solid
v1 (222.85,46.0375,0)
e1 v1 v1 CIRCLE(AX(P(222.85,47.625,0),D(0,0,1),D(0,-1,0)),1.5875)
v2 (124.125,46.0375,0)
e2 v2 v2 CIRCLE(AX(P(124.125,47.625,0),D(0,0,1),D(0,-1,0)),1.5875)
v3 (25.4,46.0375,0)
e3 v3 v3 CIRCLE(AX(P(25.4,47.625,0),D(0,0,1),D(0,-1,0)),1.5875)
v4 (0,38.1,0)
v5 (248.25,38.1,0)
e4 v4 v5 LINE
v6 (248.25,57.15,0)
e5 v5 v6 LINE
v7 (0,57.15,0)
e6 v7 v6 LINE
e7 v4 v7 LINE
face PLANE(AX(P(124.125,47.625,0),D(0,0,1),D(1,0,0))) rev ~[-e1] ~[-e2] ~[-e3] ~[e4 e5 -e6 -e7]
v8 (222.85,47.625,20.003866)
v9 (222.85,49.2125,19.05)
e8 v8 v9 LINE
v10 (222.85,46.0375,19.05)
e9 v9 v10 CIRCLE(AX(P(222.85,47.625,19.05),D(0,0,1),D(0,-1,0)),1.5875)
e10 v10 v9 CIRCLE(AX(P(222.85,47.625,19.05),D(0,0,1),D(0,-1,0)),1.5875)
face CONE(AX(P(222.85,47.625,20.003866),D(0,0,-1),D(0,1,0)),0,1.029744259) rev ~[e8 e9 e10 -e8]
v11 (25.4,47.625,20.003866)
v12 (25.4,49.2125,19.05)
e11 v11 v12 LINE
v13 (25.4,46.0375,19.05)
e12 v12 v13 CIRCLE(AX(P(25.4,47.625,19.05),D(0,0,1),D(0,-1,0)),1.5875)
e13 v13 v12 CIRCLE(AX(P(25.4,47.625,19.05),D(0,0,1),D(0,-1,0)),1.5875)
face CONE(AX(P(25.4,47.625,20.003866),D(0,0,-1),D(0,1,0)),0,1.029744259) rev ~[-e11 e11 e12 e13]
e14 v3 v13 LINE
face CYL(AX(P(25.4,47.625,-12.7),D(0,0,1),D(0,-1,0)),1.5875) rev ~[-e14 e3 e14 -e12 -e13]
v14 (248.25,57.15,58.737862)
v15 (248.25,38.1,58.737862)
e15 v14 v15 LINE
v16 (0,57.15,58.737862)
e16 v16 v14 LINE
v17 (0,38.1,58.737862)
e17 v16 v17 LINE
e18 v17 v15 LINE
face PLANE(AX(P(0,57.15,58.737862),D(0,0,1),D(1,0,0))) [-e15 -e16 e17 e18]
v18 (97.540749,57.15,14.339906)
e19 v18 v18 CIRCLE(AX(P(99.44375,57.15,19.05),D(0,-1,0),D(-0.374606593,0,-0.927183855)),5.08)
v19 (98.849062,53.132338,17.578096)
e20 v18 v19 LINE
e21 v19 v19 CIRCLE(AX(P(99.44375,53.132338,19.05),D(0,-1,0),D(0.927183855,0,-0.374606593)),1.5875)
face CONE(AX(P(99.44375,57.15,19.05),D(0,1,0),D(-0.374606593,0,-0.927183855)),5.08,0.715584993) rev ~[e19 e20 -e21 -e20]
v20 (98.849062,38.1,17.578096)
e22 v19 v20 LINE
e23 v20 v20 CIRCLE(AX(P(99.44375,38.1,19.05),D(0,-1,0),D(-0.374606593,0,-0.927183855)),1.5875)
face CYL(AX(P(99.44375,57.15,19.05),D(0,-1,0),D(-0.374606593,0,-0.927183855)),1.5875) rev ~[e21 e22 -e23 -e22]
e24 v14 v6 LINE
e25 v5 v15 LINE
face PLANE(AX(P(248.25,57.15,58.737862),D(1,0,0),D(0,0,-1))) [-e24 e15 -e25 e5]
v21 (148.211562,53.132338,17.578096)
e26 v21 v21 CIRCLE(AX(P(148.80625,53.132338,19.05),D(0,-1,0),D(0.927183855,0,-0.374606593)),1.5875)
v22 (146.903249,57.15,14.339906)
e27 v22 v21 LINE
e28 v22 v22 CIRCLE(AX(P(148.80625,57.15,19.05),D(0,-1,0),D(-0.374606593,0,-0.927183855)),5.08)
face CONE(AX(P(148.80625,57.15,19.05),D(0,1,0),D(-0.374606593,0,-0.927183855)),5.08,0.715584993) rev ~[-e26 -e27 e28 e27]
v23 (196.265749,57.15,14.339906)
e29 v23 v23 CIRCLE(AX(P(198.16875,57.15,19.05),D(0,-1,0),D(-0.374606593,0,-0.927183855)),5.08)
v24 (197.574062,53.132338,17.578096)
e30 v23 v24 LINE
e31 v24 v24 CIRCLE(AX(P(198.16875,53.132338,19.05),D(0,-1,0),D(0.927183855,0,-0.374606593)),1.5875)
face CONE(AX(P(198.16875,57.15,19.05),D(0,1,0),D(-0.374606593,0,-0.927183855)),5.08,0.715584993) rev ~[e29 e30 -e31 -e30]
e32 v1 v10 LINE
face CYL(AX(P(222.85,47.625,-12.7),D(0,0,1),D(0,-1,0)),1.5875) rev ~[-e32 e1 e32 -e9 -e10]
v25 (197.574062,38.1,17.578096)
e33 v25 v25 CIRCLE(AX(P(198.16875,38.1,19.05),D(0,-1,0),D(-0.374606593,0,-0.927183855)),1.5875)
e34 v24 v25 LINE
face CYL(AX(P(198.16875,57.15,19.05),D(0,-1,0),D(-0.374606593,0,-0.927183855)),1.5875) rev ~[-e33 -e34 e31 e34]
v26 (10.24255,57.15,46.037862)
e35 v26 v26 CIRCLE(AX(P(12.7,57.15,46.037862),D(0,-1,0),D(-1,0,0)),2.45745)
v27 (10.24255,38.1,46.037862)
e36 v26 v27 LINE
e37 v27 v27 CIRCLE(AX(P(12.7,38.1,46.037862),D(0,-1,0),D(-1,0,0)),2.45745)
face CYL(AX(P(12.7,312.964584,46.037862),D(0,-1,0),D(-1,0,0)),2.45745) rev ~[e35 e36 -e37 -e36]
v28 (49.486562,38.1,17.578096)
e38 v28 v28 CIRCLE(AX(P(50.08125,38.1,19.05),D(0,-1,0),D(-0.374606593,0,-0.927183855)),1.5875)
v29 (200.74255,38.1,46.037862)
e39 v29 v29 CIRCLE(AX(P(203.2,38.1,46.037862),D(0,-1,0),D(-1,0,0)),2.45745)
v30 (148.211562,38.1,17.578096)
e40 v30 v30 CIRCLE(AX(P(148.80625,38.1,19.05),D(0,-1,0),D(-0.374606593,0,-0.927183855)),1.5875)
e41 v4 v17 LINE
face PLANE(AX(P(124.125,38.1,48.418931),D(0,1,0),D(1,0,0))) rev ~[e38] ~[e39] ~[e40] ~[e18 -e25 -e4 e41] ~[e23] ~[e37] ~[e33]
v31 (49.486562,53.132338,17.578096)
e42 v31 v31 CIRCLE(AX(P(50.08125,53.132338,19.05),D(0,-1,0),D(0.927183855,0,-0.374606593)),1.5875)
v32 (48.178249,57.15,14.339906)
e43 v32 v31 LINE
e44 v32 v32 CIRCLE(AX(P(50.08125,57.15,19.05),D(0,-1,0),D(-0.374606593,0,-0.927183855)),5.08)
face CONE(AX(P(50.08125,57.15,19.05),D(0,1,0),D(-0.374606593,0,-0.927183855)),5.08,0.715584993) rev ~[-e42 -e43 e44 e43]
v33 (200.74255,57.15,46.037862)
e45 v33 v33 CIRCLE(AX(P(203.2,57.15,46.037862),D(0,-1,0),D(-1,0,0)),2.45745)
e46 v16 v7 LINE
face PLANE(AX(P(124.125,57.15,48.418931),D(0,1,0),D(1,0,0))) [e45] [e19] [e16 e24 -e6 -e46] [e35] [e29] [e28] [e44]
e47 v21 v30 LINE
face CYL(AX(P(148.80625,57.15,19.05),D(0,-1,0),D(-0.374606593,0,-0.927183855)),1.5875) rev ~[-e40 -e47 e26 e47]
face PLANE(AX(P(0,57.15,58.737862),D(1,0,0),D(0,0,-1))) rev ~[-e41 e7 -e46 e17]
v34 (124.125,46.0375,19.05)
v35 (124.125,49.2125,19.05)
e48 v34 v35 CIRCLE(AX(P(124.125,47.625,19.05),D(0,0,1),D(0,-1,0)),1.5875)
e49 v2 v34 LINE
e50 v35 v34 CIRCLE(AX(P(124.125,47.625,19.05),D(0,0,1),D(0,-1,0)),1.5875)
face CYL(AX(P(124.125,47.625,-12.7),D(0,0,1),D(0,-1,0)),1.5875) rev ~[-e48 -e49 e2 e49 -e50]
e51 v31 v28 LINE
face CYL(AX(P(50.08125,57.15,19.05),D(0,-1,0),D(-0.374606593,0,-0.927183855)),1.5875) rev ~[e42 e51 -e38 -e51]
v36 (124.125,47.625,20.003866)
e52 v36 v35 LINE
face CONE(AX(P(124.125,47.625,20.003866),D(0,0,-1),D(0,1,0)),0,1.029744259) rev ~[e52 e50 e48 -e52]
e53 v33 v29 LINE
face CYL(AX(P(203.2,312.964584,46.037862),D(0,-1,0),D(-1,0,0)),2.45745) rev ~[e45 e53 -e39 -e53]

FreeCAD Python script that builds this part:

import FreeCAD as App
import Part
import Sketcher
Q = App.Units.Quantity

doc = App.newDocument("Part")
params = doc.addObject("Spreadsheet::Sheet", "Params")
for row, (alias, value) in enumerate([
    ("sketch1_height", "0.75 in"),
    ("pad1_length", "1.5 in"),
    ("sketch2_diameter", "0.125 in"),
    ("hole_diameter", "0.125 in"),
    ("hole_depth", "1.25 in"),
    ("hole_csink_diameter", "0.4 in"),
    ("sketch3_diameter", "0.125 in"),
    ("hole2_diameter", "0.125 in"),
    ("hole2_depth", "2.25 in"),
    ("hole2_csink_diameter", "0.4 in"),
    ("pad2_length", "0.75 in"),
    ("hole3_diameter", "0.1935 in"),
], start=1):
    params.set(f"A{row}", alias)
    params.set(f"B{row}", "=" + value)
    params.setAlias(f"B{row}", alias)

body = doc.addObject("PartDesign::Body", "Body")

# Sketch on XY plane
sketch1 = body.newObject("Sketcher::SketchObject", "Sketch")
sketch1.AttachmentSupport = (doc.getObject("XY_Plane"), [""])
sketch1.MapMode = "FlatFace"
sketch1.addGeometry(Part.LineSegment(App.Vector(0, 57, 0), App.Vector(0, 38, 0)), False)
sketch1.addGeometry(Part.LineSegment(App.Vector(0, 38, 0), App.Vector(248, 38, 0)), False)
sketch1.addGeometry(Part.LineSegment(App.Vector(248, 38, 0), App.Vector(248, 57, 0)), False)
sketch1.addGeometry(Part.LineSegment(App.Vector(248, 57, 0), App.Vector(0, 57, 0)), False)
sketch1.addConstraint(Sketcher.Constraint("Coincident", 0, 2, 1, 1))
sketch1.addConstraint(Sketcher.Constraint("Coincident", 1, 2, 2, 1))
sketch1.addConstraint(Sketcher.Constraint("Coincident", 2, 2, 3, 1))
sketch1.addConstraint(Sketcher.Constraint("Coincident", 3, 2, 0, 1))
sketch1.addConstraint(Sketcher.Constraint("Vertical", 0))
sketch1.addConstraint(Sketcher.Constraint("Horizontal", 1))
sketch1.addConstraint(Sketcher.Constraint("Vertical", 2))
sketch1.addConstraint(Sketcher.Constraint("Horizontal", 3))
sketch1.addConstraint(Sketcher.Constraint("PointOnObject", 0, 2, -2))
sketch1.addConstraint(Sketcher.Constraint("DistanceY", 0, 2, 0, 1, Q("0.75 in")))
sketch1.addConstraint(Sketcher.Constraint("DistanceY", -1, 1, 0, 2, Q("1.5 in")))
sketch1.addConstraint(Sketcher.Constraint("DistanceX", 1, 1, 1, 2, Q("248.25 mm")))
sketch1.setExpression("Constraints[9]", "Params.sketch1_height")
pad1 = body.newObject("PartDesign::Pad", "Pad")
pad1.Profile = sketch1
pad1.setExpression("Length", "Params.pad1_length")

# Sketch on XY plane
sketch2 = body.newObject("Sketcher::SketchObject", "Sketch001")
sketch2.AttachmentSupport = (doc.getObject("XY_Plane"), [""])
sketch2.MapMode = "FlatFace"
sketch2.AttachmentOffset = App.Placement(App.Vector(0, 0, -0.5 * 25.4), App.Rotation())
sketch2.addGeometry(Part.Circle(App.Vector(222.8, -153.3, 0), App.Vector(0, 0, 1), 1.6), False)
sketch2.addGeometry(Part.Circle(App.Vector(222.8, 47.6, 0), App.Vector(0, 0, 1), 1.6), False)
sketch2.addGeometry(Part.Circle(App.Vector(25.4, 47.6, 0), App.Vector(0, 0, 1), 1.6), False)
sketch2.addGeometry(Part.Circle(App.Vector(124.1, 47.6, 0), App.Vector(0, 0, 1), 1.6), False)
sketch2.addGeometry(Part.Circle(App.Vector(124.1, -153.3, 0), App.Vector(0, 0, 1), 1.6), False)
sketch2.addGeometry(Part.Circle(App.Vector(25.4, -153.3, 0), App.Vector(0, 0, 1), 1.6), False)
sketch2.addConstraint(Sketcher.Constraint("Equal", 0, 1))
sketch2.addConstraint(Sketcher.Constraint("Equal", 1, 2))
sketch2.addConstraint(Sketcher.Constraint("Equal", 2, 3))
sketch2.addConstraint(Sketcher.Constraint("Equal", 3, 4))
sketch2.addConstraint(Sketcher.Constraint("Equal", 4, 5))
sketch2.addConstraint(Sketcher.Constraint("Horizontal", 1, 3, 2, 3))
sketch2.addConstraint(Sketcher.Constraint("Horizontal", 2, 3, 3, 3))
sketch2.addConstraint(Sketcher.Constraint("Horizontal", 0, 3, 4, 3))
sketch2.addConstraint(Sketcher.Constraint("Horizontal", 4, 3, 5, 3))
sketch2.addConstraint(Sketcher.Constraint("Vertical", 0, 3, 1, 3))
sketch2.addConstraint(Sketcher.Constraint("Vertical", 3, 3, 4, 3))
sketch2.addConstraint(Sketcher.Constraint("Vertical", 2, 3, 5, 3))
sketch2.addConstraint(Sketcher.Constraint("Diameter", 0, Q("0.125 in")))
sketch2.addConstraint(Sketcher.Constraint("DistanceX", -1, 1, 2, 3, Q("1 in")))
sketch2.addConstraint(Sketcher.Constraint("DistanceY", -1, 1, 1, 3, Q("1.875 in")))
sketch2.addConstraint(Sketcher.Constraint("DistanceX", -1, 1, 0, 3, Q("222.85 mm")))
sketch2.addConstraint(Sketcher.Constraint("DistanceX", -1, 1, 3, 3, Q("124.125 mm")))
sketch2.addConstraint(Sketcher.Constraint("DistanceY", 0, 3, -1, 1, Q("153.307047 mm")))
sketch2.setExpression("Constraints[12]", "Params.sketch2_diameter")
doc.recompute()
hole = body.newObject("PartDesign::Hole", "Hole")
hole.Profile = sketch2
hole.ThreadType = "None"
hole.setExpression("Diameter", "Params.hole_diameter")
hole.DepthType = "Dimension"
hole.setExpression("Depth", "Params.hole_depth")
hole.DrillPoint = "Angled"
hole.DrillPointAngle = 118
hole.HoleCutType = "Countersink"
hole.setExpression("HoleCutDiameter", "Params.hole_csink_diameter")
hole.HoleCutCountersinkAngle = 82
hole.Reversed = True

# Sketch on XZ plane
sketch3 = body.newObject("Sketcher::SketchObject", "Sketch002")
sketch3.AttachmentSupport = (doc.getObject("XZ_Plane"), [""])
sketch3.MapMode = "FlatFace"
sketch3.AttachmentOffset = App.Placement(App.Vector(0, 0, -2.25 * 25.4), App.Rotation())
sketch3.addGeometry(Part.Circle(App.Vector(99.4, 19.1, 0), App.Vector(0, 0, 1), 1.6), False)
sketch3.addGeometry(Part.Circle(App.Vector(198.2, 19.1, 0), App.Vector(0, 0, 1), 1.6), False)
sketch3.addGeometry(Part.Circle(App.Vector(148.8, 19.1, 0), App.Vector(0, 0, 1), 1.6), False)
sketch3.addGeometry(Part.Circle(App.Vector(50.1, 19.1, 0), App.Vector(0, 0, 1), 1.6), False)
sketch3.addConstraint(Sketcher.Constraint("Equal", 0, 1))
sketch3.addConstraint(Sketcher.Constraint("Equal", 1, 2))
sketch3.addConstraint(Sketcher.Constraint("Equal", 2, 3))
sketch3.addConstraint(Sketcher.Constraint("Horizontal", 0, 3, 1, 3))
sketch3.addConstraint(Sketcher.Constraint("Horizontal", 1, 3, 2, 3))
sketch3.addConstraint(Sketcher.Constraint("Horizontal", 2, 3, 3, 3))
sketch3.addConstraint(Sketcher.Constraint("Diameter", 0, Q("0.125 in")))
sketch3.addConstraint(Sketcher.Constraint("DistanceY", -1, 1, 0, 3, Q("0.75 in")))
sketch3.addConstraint(Sketcher.Constraint("DistanceX", 0, 3, 1, 3, Q("98.725 mm")))
sketch3.addConstraint(Sketcher.Constraint("DistanceX", 0, 3, 2, 3, Q("49.3625 mm")))
sketch3.addConstraint(Sketcher.Constraint("DistanceX", 3, 3, 0, 3, Q("49.3625 mm")))
sketch3.addConstraint(Sketcher.Constraint("DistanceX", -1, 1, 0, 3, Q("99.44375 mm")))
sketch3.setExpression("Constraints[6]", "Params.sketch3_diameter")
doc.recompute()
hole2 = body.newObject("PartDesign::Hole", "Hole001")
hole2.Profile = sketch3
hole2.ThreadType = "None"
hole2.setExpression("Diameter", "Params.hole2_diameter")
hole2.DepthType = "Dimension"
hole2.setExpression("Depth", "Params.hole2_depth")
hole2.DrillPoint = "Angled"
hole2.DrillPointAngle = 118
hole2.HoleCutType = "Countersink"
hole2.setExpression("HoleCutDiameter", "Params.hole2_csink_diameter")
hole2.HoleCutCountersinkAngle = 82
hole2.Reversed = True

# Sketch on XZ plane
sketch4 = body.newObject("Sketcher::SketchObject", "Sketch003")
sketch4.AttachmentSupport = (doc.getObject("XZ_Plane"), [""])
sketch4.MapMode = "FlatFace"
sketch4.AttachmentOffset = App.Placement(App.Vector(0, 0, -2.25 * 25.4), App.Rotation())
sketch4.addGeometry(Part.LineSegment(App.Vector(0, 38, 0), App.Vector(0, 59, 0)), False)
sketch4.addGeometry(Part.LineSegment(App.Vector(0, 59, 0), App.Vector(248, 59, 0)), False)
sketch4.addGeometry(Part.LineSegment(App.Vector(248, 59, 0), App.Vector(248, 38, 0)), False)
sketch4.addGeometry(Part.LineSegment(App.Vector(248, 38, 0), App.Vector(0, 38, 0)), False)
sketch4.addConstraint(Sketcher.Constraint("Coincident", 0, 2, 1, 1))
sketch4.addConstraint(Sketcher.Constraint("Coincident", 1, 2, 2, 1))
sketch4.addConstraint(Sketcher.Constraint("Coincident", 2, 2, 3, 1))
sketch4.addConstraint(Sketcher.Constraint("Coincident", 3, 2, 0, 1))
sketch4.addConstraint(Sketcher.Constraint("Vertical", 0))
sketch4.addConstraint(Sketcher.Constraint("Horizontal", 1))
sketch4.addConstraint(Sketcher.Constraint("Vertical", 2))
sketch4.addConstraint(Sketcher.Constraint("Horizontal", 3))
sketch4.addConstraint(Sketcher.Constraint("PointOnObject", 0, 2, -2))
sketch4.addConstraint(Sketcher.Constraint("DistanceY", -1, 1, 2, 2, Q("1.5 in")))
sketch4.addConstraint(Sketcher.Constraint("DistanceX", 1, 1, 1, 2, Q("248.25 mm")))
sketch4.addConstraint(Sketcher.Constraint("DistanceY", 0, 1, 0, 2, Q("20.637862 mm")))
pad2 = body.newObject("PartDesign::Pad", "Pad001")
pad2.Profile = sketch4
pad2.setExpression("Length", "Params.pad2_length")

# Sketch on XZ plane
sketch5 = body.newObject("Sketcher::SketchObject", "Sketch004")
sketch5.AttachmentSupport = (doc.getObject("XZ_Plane"), [""])
sketch5.MapMode = "FlatFace"
sketch5.AttachmentOffset = App.Placement(App.Vector(0, 0, -2.25 * 25.4), App.Rotation())
sketch5.addGeometry(Part.Circle(App.Vector(12.7, 46, 0), App.Vector(0, 0, 1), 2.5), False)
sketch5.addGeometry(Part.Circle(App.Vector(203.2, 46, 0), App.Vector(0, 0, 1), 2.5), False)
sketch5.addConstraint(Sketcher.Constraint("Equal", 0, 1))
sketch5.addConstraint(Sketcher.Constraint("Horizontal", 0, 3, 1, 3))
sketch5.addConstraint(Sketcher.Constraint("DistanceX", -1, 1, 1, 3, Q("8 in")))
sketch5.addConstraint(Sketcher.Constraint("Diameter", 0, Q("0.1935 in")))
sketch5.addConstraint(Sketcher.Constraint("DistanceX", -1, 1, 0, 3, Q("0.5 in")))
sketch5.addConstraint(Sketcher.Constraint("DistanceY", -1, 1, 0, 3, Q("46.037862 mm")))
doc.recompute()
hole3 = body.newObject("PartDesign::Hole", "Hole002")
hole3.Profile = sketch5
hole3.ThreadType = "None"
hole3.setExpression("Diameter", "Params.hole3_diameter")
hole3.DepthType = "ThroughAll"
hole3.Reversed = True

doc.recompute()
